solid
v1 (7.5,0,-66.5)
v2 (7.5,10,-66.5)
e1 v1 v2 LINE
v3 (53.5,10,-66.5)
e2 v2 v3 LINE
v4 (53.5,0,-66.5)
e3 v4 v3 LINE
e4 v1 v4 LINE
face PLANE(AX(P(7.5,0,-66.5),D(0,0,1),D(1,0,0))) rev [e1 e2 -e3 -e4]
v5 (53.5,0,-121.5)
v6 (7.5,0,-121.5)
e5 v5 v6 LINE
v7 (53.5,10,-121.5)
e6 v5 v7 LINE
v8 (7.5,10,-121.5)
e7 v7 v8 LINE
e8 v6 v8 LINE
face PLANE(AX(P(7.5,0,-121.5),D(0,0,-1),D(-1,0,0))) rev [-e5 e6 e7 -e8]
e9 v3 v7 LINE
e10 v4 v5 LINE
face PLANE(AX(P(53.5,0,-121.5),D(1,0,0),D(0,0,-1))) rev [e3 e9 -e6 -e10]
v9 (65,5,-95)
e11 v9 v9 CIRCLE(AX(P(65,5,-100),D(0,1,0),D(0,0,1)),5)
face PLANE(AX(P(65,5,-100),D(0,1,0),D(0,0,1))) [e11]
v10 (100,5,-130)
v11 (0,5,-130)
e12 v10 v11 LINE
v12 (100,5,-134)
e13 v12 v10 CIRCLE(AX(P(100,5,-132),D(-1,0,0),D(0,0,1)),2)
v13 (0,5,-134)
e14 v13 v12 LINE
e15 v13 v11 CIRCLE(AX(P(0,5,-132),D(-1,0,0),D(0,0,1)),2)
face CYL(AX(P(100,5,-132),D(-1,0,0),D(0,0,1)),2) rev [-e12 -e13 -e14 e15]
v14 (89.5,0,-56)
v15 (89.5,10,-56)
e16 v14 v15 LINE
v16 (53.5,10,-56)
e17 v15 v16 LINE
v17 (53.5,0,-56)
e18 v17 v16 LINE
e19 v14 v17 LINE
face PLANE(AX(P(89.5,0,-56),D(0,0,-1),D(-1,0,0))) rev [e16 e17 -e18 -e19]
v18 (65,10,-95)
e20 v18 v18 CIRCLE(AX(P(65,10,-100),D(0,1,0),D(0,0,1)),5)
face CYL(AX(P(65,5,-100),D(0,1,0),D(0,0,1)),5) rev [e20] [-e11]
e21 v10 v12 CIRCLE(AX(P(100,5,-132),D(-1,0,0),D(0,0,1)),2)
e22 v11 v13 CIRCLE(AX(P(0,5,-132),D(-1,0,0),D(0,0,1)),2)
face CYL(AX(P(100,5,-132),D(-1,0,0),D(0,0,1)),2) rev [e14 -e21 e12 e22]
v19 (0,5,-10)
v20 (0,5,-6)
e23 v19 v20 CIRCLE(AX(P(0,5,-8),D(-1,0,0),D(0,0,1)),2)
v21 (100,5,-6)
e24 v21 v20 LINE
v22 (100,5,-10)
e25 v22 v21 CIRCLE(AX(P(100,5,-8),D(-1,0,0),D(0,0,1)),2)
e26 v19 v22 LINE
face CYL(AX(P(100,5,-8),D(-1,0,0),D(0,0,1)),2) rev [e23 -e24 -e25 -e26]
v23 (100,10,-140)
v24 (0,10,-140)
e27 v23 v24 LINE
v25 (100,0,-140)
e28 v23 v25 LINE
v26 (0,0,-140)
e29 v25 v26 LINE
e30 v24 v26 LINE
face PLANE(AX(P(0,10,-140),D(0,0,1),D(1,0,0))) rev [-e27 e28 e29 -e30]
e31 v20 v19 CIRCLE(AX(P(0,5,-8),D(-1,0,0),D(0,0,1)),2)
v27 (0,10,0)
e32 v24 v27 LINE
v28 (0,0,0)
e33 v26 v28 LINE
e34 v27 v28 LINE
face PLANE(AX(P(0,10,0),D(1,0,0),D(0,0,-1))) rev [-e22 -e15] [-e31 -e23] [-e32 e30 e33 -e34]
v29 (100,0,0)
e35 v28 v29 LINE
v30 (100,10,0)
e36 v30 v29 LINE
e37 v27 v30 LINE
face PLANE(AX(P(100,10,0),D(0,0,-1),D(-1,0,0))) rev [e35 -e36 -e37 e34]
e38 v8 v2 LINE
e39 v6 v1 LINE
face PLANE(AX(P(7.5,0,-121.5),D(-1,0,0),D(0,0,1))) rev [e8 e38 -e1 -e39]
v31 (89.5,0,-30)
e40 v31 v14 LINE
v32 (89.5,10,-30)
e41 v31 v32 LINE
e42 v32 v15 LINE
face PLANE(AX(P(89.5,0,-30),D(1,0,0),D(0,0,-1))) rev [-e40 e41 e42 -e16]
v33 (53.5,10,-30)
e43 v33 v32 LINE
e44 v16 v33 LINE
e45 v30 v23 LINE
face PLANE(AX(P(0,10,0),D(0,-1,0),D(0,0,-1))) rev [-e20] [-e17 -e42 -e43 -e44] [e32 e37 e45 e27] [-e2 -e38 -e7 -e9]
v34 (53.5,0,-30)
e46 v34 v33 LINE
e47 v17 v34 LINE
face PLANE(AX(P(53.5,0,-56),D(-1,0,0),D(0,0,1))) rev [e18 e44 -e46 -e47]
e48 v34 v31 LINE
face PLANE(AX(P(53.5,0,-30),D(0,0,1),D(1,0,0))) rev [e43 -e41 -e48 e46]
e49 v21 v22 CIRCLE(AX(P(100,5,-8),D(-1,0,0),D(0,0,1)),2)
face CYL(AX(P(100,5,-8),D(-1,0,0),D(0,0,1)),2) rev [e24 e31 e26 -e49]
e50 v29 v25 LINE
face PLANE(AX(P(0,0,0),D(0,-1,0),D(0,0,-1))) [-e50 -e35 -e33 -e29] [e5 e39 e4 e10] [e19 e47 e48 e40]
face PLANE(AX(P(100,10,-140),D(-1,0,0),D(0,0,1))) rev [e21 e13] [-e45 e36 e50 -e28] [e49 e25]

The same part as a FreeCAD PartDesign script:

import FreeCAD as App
import Part
import Sketcher

V = App.Vector
Q = App.Units.Quantity


def add_polygon(sketch, points):
    """Adds a closed chain of lines whose ends are joined by coincident constraints."""
    first, n = sketch.GeometryCount, len(points)
    for a, b in zip(points, points[1:] + points[:1]):
        sketch.addGeometry(Part.LineSegment(App.Vector(*a, 0), App.Vector(*b, 0)), False)
    for i in range(n):
        sketch.addConstraint(Sketcher.Constraint("Coincident", first + i, 2, first + (i + 1) % n, 1))

doc = App.newDocument("Part")
body = doc.addObject("PartDesign::Body", "Body")

sketch1 = body.newObject("Sketcher::SketchObject", "Sketch")
sketch1.AttachmentSupport = (doc.getObject("XZ_Plane"), [""])
sketch1.MapMode = "FlatFace"
add_polygon(sketch1, [(0, -140), (0, 0), (100, 0), (100, -140)])
sketch1.addConstraint([
    Sketcher.Constraint("Vertical", 0),
    Sketcher.Constraint("Horizontal", 1),
    Sketcher.Constraint("Vertical", 2),
    Sketcher.Constraint("Horizontal", 3),
    Sketcher.Constraint("Coincident", 0, 2, -1, 1),
    Sketcher.Constraint("DistanceX", 1, 1, 1, 2, Q("100 mm")),
    Sketcher.Constraint("DistanceY", 0, 1, 0, 2, Q("140 mm")),
])
pad1 = body.newObject("PartDesign::Pad", "Pad")
pad1.Profile = sketch1
pad1.Length = 10
pad1.Reversed = True

sketch2 = body.newObject("Sketcher::SketchObject", "Sketch001")
sketch2.AttachmentSupport = (doc.getObject("XZ_Plane"), [""])
sketch2.MapMode = "FlatFace"
sketch2.AttachmentOffset = App.Placement(V(0, 0, -10), App.Rotation())
sketch2.addGeometry(Part.Circle(V(65, -100, 0), V(0, 0, 1), 5), False)
sketch2.addConstraint([
    Sketcher.Constraint("Diameter", 0, Q("10 mm")),
    Sketcher.Constraint("DistanceX", -1, 1, 0, 3, Q("65 mm")),
    Sketcher.Constraint("DistanceY", 0, 3, -1, 1, Q("100 mm")),
])
pocket1 = body.newObject("PartDesign::Pocket", "Pocket")
pocket1.Profile = sketch2
pocket1.Length = 5
pocket1.Reversed = True

sketch3 = body.newObject("Sketcher::SketchObject", "Sketch002")
sketch3.AttachmentSupport = (doc.getObject("YZ_Plane"), [""])
sketch3.MapMode = "FlatFace"
sketch3.addGeometry(Part.Circle(V(5, -8, 0), V(0, 0, 1), 2), False)
sketch3.addConstraint([
    Sketcher.Constraint("Diameter", 0, Q("4 mm")),
    Sketcher.Constraint("DistanceX", -1, 1, 0, 3, Q("5 mm")),
    Sketcher.Constraint("DistanceY", 0, 3, -1, 1, Q("8 mm")),
])
pocket2 = body.newObject("PartDesign::Pocket", "Pocket001")
pocket2.Profile = sketch3
pocket2.Type = "ThroughAll"
pocket2.Reversed = True

sketch4 = body.newObject("Sketcher::SketchObject", "Sketch003")
sketch4.AttachmentSupport = (doc.getObject("YZ_Plane"), [""])
sketch4.MapMode = "FlatFace"
sketch4.addGeometry(Part.Circle(V(5, -132, 0), V(0, 0, 1), 2), False)
sketch4.addConstraint([
    Sketcher.Constraint("Diameter", 0, Q("4 mm")),
    Sketcher.Constraint("DistanceX", -1, 1, 0, 3, Q("5 mm")),
    Sketcher.Constraint("DistanceY", 0, 3, -1, 1, Q("132 mm")),
])
pocket3 = body.newObject("PartDesign::Pocket", "Pocket002")
pocket3.Profile = sketch4
pocket3.Type = "ThroughAll"
pocket3.Reversed = True

sketch5 = body.newObject("Sketcher::SketchObject", "Sketch004")
sketch5.AttachmentSupport = (doc.getObject("XZ_Plane"), [""])
sketch5.MapMode = "FlatFace"
sketch5.AttachmentOffset = App.Placement(V(0, 0, -10), App.Rotation())
add_polygon(sketch5, [(8, -122), (8, -66), (54, -66), (54, -122)])
add_polygon(sketch5, [(54, -56), (54, -30), (90, -30), (90, -56)])
sketch5.addConstraint([
    Sketcher.Constraint("Vertical", 0),
    Sketcher.Constraint("Horizontal", 1),
    Sketcher.Constraint("Vertical", 2),
    Sketcher.Constraint("Horizontal", 3),
    Sketcher.Constraint("Vertical", 4),
    Sketcher.Constraint("Horizontal", 5),
    Sketcher.Constraint("Vertical", 6),
    Sketcher.Constraint("Horizontal", 7),
    Sketcher.Constraint("Vertical", 2, 2, 4, 2),
    Sketcher.Constraint("DistanceX", 1, 1, 1, 2, Q("46 mm")),
    Sketcher.Constraint("DistanceX", 5, 1, 5, 2, Q("36 mm")),
    Sketcher.Constraint("DistanceY", 0, 1, 0, 2, Q("55 mm")),
    Sketcher.Constraint("DistanceY", 4, 1, 4, 2, Q("26 mm")),
    Sketcher.Constraint("DistanceY", 4, 2, -1, 1, Q("30 mm")),
    Sketcher.Constraint("DistanceX", -1, 1, 0, 2, Q("7.5 mm")),
    Sketcher.Constraint("DistanceY", 0, 2, -1, 1, Q("66.5 mm")),
])
pocket4 = body.newObject("PartDesign::Pocket", "Pocket003")
pocket4.Profile = sketch5
pocket4.Type = "ThroughAll"
pocket4.Reversed = True

doc.recompute()
